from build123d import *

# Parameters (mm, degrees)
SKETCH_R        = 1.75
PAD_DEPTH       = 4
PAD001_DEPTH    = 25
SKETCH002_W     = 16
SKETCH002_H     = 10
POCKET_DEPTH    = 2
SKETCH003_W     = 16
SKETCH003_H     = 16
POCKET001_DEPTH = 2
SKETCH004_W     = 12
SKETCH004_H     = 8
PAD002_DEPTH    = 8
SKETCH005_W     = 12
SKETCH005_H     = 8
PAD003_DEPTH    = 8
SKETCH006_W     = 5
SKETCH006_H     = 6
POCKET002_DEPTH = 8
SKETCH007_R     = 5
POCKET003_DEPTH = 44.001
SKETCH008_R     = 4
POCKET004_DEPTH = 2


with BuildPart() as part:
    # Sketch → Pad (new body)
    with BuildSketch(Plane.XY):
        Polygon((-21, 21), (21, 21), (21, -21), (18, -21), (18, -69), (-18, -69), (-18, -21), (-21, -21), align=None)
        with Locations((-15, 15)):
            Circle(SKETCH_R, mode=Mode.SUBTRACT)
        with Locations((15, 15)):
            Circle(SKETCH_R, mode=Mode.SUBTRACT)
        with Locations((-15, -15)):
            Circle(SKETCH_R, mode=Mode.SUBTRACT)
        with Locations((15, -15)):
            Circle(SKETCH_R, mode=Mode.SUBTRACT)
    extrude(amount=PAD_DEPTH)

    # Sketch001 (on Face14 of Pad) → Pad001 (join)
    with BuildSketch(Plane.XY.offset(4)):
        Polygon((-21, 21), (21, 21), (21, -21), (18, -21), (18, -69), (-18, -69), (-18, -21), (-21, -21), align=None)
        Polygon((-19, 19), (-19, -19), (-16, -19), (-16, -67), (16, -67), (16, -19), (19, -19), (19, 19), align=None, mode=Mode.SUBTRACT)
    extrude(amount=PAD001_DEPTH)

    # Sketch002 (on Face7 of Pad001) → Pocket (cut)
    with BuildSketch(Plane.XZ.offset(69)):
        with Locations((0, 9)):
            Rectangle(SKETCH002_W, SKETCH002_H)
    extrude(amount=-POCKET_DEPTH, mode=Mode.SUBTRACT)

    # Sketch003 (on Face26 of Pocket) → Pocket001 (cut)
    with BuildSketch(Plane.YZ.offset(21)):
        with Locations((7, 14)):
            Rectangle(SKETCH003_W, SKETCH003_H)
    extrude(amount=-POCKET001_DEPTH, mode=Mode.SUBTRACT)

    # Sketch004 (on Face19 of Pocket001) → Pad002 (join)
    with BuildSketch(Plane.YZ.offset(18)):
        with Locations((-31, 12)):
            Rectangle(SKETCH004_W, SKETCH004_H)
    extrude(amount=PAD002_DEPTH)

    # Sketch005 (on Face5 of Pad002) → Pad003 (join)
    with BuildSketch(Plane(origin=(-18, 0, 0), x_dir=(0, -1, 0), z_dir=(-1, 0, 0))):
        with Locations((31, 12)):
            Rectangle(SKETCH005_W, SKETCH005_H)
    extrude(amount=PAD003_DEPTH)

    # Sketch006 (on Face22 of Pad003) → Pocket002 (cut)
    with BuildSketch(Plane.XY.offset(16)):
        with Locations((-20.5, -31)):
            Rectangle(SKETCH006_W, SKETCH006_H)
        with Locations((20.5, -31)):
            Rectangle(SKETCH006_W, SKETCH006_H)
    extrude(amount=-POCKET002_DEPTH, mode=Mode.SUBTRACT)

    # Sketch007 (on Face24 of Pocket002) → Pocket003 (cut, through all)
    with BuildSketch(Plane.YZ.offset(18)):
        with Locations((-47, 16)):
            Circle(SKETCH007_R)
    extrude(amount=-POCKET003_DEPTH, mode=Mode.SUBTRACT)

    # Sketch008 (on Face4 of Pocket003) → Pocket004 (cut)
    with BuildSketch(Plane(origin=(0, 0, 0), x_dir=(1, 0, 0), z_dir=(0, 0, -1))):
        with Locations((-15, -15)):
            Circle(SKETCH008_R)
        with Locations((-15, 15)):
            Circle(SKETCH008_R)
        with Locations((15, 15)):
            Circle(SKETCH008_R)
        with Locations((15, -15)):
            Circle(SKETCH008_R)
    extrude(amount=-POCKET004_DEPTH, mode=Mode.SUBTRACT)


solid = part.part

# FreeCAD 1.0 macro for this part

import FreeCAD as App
import Part
import Sketcher

V = App.Vector
Q = App.Units.Quantity

doc = App.newDocument("Part")
body = doc.addObject("PartDesign::Body", "Body")

sketch1 = body.newObject("Sketcher::SketchObject", "Sketch")
sketch1.AttachmentSupport = (doc.getObject("XY_Plane"), [""])
sketch1.MapMode = "FlatFace"
sketch1.addGeometry([
    Part.LineSegment(V(21, 21, 0), V(-21, 21, 0)),
    Part.LineSegment(V(-21, 21, 0), V(-21, -21, 0)),
    Part.LineSegment(V(-21, -21, 0), V(-18, -21, 0)),
    Part.LineSegment(V(-18, -21, 0), V(-18, -69, 0)),
    Part.LineSegment(V(-18, -69, 0), V(18, -69, 0)),
    Part.LineSegment(V(18, -69, 0), V(18, -21, 0)),
    Part.LineSegment(V(18, -21, 0), V(21, -21, 0)),
    Part.LineSegment(V(21, -21, 0), V(21, 21, 0)),
    Part.Circle(V(15, -15, 0), V(0, 0, 1), 1.8),
    Part.Circle(V(-15, -15, 0), V(0, 0, 1), 1.8),
    Part.Circle(V(15, 15, 0), V(0, 0, 1), 1.8),
    Part.Circle(V(-15, 15, 0), V(0, 0, 1), 1.8),
], False)
sketch1.addConstraint([
    Sketcher.Constraint("Coincident", 0, 2, 1, 1),
    Sketcher.Constraint("Coincident", 1, 2, 2, 1),
    Sketcher.Constraint("Coincident", 2, 2, 3, 1),
    Sketcher.Constraint("Coincident", 3, 2, 4, 1),
    Sketcher.Constraint("Coincident", 4, 2, 5, 1),
    Sketcher.Constraint("Coincident", 5, 2, 6, 1),
    Sketcher.Constraint("Coincident", 6, 2, 7, 1),
    Sketcher.Constraint("Coincident", 7, 2, 0, 1),
    Sketcher.Constraint("Horizontal", 0),
    Sketcher.Constraint("Vertical", 1),
    Sketcher.Constraint("Horizontal", 2),
    Sketcher.Constraint("Vertical", 3),
    Sketcher.Constraint("Horizontal", 4),
    Sketcher.Constraint("Vertical", 5),
    Sketcher.Constraint("Horizontal", 6),
    Sketcher.Constraint("Vertical", 7),
    Sketcher.Constraint("Equal", 8, 9),
    Sketcher.Constraint("Equal", 9, 10),
    Sketcher.Constraint("Equal", 10, 11),
    Sketcher.Constraint("Symmetric", 9, 3, 10, 3, -1, 1),
    Sketcher.Constraint("Symmetric", 8, 3, 11, 3, -1, 1),
    Sketcher.Constraint("Symmetric", 0, 2, 6, 2, -1, 1),
    Sketcher.Constraint("Symmetric", 8, 3, 9, 3, -2),
    Sketcher.Constraint("Symmetric", 2, 2, 5, 2, -2),
    Sketcher.Constraint("Equal", 0, 1),
    Sketcher.Constraint("Diameter", 8, Q("3.5 mm")),
    Sketcher.Constraint("DistanceX", 0, 2, 0, 1, Q("42 mm")),
    Sketcher.Constraint("DistanceX", 2, 1, 2, 2, Q("3 mm")),
    Sketcher.Constraint("DistanceY", 3, 2, 3, 1, Q("48 mm")),
    Sketcher.Constraint("DistanceX", -1, 1, 8, 3, Q("15 mm")),
    Sketcher.Constraint("DistanceY", 8, 3, -1, 1, Q("15 mm")),
])
pad1 = body.newObject("PartDesign::Pad", "Pad")
pad1.Profile = sketch1
pad1.Length = 4

sketch2 = body.newObject("Sketcher::SketchObject", "Sketch001")
sketch2.AttachmentSupport = (doc.getObject("XY_Plane"), [""])
sketch2.MapMode = "FlatFace"
sketch2.AttachmentOffset = App.Placement(V(0, 0, 4), App.Rotation())
sketch2.addGeometry([
    Part.LineSegment(V(21, 21, 0), V(-21, 21, 0)),
    Part.LineSegment(V(-21, 21, 0), V(-21, -21, 0)),
    Part.LineSegment(V(-21, -21, 0), V(-18, -21, 0)),
    Part.LineSegment(V(-18, -21, 0), V(-18, -69, 0)),
    Part.LineSegment(V(-18, -69, 0), V(18, -69, 0)),
    Part.LineSegment(V(18, -69, 0), V(18, -21, 0)),
    Part.LineSegment(V(18, -21, 0), V(21, -21, 0)),
    Part.LineSegment(V(21, -21, 0), V(21, 21, 0)),
    Part.LineSegment(V(-19, 19, 0), V(19, 19, 0)),
    Part.LineSegment(V(19, 19, 0), V(19, -19, 0)),
    Part.LineSegment(V(19, -19, 0), V(16, -19, 0)),
    Part.LineSegment(V(16, -19, 0), V(16, -67, 0)),
    Part.LineSegment(V(16, -67, 0), V(-16, -67, 0)),
    Part.LineSegment(V(-16, -67, 0), V(-16, -19, 0)),
    Part.LineSegment(V(-16, -19, 0), V(-19, -19, 0)),
    Part.LineSegment(V(-19, -19, 0), V(-19, 19, 0)),
], False)
sketch2.addConstraint([
    Sketcher.Constraint("Coincident", 0, 2, 1, 1),
    Sketcher.Constraint("Coincident", 1, 2, 2, 1),
    Sketcher.Constraint("Coincident", 2, 2, 3, 1),
    Sketcher.Constraint("Coincident", 3, 2, 4, 1),
    Sketcher.Constraint("Coincident", 4, 2, 5, 1),
    Sketcher.Constraint("Coincident", 5, 2, 6, 1),
    Sketcher.Constraint("Coincident", 6, 2, 7, 1),
    Sketcher.Constraint("Coincident", 7, 2, 0, 1),
    Sketcher.Constraint("Coincident", 8, 2, 9, 1),
    Sketcher.Constraint("Coincident", 9, 2, 10, 1),
    Sketcher.Constraint("Coincident", 10, 2, 11, 1),
    Sketcher.Constraint("Coincident", 11, 2, 12, 1),
    Sketcher.Constraint("Coincident", 12, 2, 13, 1),
    Sketcher.Constraint("Coincident", 13, 2, 14, 1),
    Sketcher.Constraint("Coincident", 14, 2, 15, 1),
    Sketcher.Constraint("Coincident", 15, 2, 8, 1),
    Sketcher.Constraint("Horizontal", 0),
    Sketcher.Constraint("Vertical", 1),
    Sketcher.Constraint("Horizontal", 2),
    Sketcher.Constraint("Vertical", 3),
    Sketcher.Constraint("Horizontal", 4),
    Sketcher.Constraint("Vertical", 5),
    Sketcher.Constraint("Horizontal", 6),
    Sketcher.Constraint("Vertical", 7),
    Sketcher.Constraint("Horizontal", 8),
    Sketcher.Constraint("Vertical", 9),
    Sketcher.Constraint("Horizontal", 10),
    Sketcher.Constraint("Vertical", 11),
    Sketcher.Constraint("Horizontal", 12),
    Sketcher.Constraint("Vertical", 13),
    Sketcher.Constraint("Horizontal", 14),
    Sketcher.Constraint("Vertical", 15),
    Sketcher.Constraint("Symmetric", 0, 2, 6, 2, -1, 1),
    Sketcher.Constraint("Symmetric", 8, 2, 14, 2, -1, 1),
    Sketcher.Constraint("Symmetric", 2, 2, 5, 2, -2),
    Sketcher.Constraint("Symmetric", 10, 2, 13, 2, -2),
    Sketcher.Constraint("Equal", 6, 10),
    Sketcher.Constraint("Equal", 0, 1),
    Sketcher.Constraint("Equal", 8, 9),
    Sketcher.Constraint("Equal", 5, 11),
    Sketcher.Constraint("DistanceX", 0, 2, 0, 1, Q("42 mm")),
    Sketcher.Constraint("DistanceX", 2, 1, 2, 2, Q("3 mm")),
    Sketcher.Constraint("DistanceX", 8, 1, 8, 2, Q("38 mm")),
    Sketcher.Constraint("DistanceY", 3, 2, 3, 1, Q("48 mm")),
])
pad2 = body.newObject("PartDesign::Pad", "Pad001")
pad2.Profile = sketch2
pad2.Length = 25

sketch3 = body.newObject("Sketcher::SketchObject", "Sketch002")
sketch3.AttachmentSupport = (doc.getObject("XZ_Plane"), [""])
sketch3.MapMode = "FlatFace"
sketch3.AttachmentOffset = App.Placement(V(0, 0, 69), App.Rotation())
sketch3.addGeometry([
    Part.LineSegment(V(-8, 14, 0), V(-8, 4, 0)),
    Part.LineSegment(V(-8, 4, 0), V(8, 4, 0)),
    Part.LineSegment(V(8, 4, 0), V(8, 14, 0)),
    Part.LineSegment(V(8, 14, 0), V(-8, 14, 0)),
], False)
sketch3.addConstraint([
    Sketcher.Constraint("Coincident", 0, 2, 1, 1),
    Sketcher.Constraint("Coincident", 1, 2, 2, 1),
    Sketcher.Constraint("Coincident", 2, 2, 3, 1),
    Sketcher.Constraint("Coincident", 3, 2, 0, 1),
    Sketcher.Constraint("Vertical", 0),
    Sketcher.Constraint("Horizontal", 1),
    Sketcher.Constraint("Vertical", 2),
    Sketcher.Constraint("Horizontal", 3),
    Sketcher.Constraint("DistanceX", 1, 1, 1, 2, Q("16 mm")),
    Sketcher.Constraint("DistanceY", 0, 2, 0, 1, Q("10 mm")),
    Sketcher.Constraint("DistanceX", 0, 2, -1, 1, Q("8 mm")),
    Sketcher.Constraint("DistanceY", -1, 1, 0, 2, Q("4 mm")),
])
pocket1 = body.newObject("PartDesign::Pocket", "Pocket")
pocket1.Profile = sketch3
pocket1.Length = 2

sketch4 = body.newObject("Sketcher::SketchObject", "Sketch003")
sketch4.AttachmentSupport = (doc.getObject("YZ_Plane"), [""])
sketch4.MapMode = "FlatFace"
sketch4.AttachmentOffset = App.Placement(V(0, 0, 21), App.Rotation())
sketch4.addGeometry([
    Part.LineSegment(V(-1, 22, 0), V(-1, 6, 0)),
    Part.LineSegment(V(-1, 6, 0), V(15, 6, 0)),
    Part.LineSegment(V(15, 6, 0), V(15, 22, 0)),
    Part.LineSegment(V(15, 22, 0), V(-1, 22, 0)),
], False)
sketch4.addConstraint([
    Sketcher.Constraint("Coincident", 0, 2, 1, 1),
    Sketcher.Constraint("Coincident", 1, 2, 2, 1),
    Sketcher.Constraint("Coincident", 2, 2, 3, 1),
    Sketcher.Constraint("Coincident", 3, 2, 0, 1),
    Sketcher.Constraint("Vertical", 0),
    Sketcher.Constraint("Horizontal", 1),
    Sketcher.Constraint("Vertical", 2),
    Sketcher.Constraint("Horizontal", 3),
    Sketcher.Constraint("Equal", 3, 0),
    Sketcher.Constraint("DistanceX", 1, 1, 1, 2, Q("16 mm")),
    Sketcher.Constraint("DistanceX", 0, 2, -1, 1, Q("1 mm")),
    Sketcher.Constraint("DistanceY", -1, 1, 0, 2, Q("6 mm")),
])
pocket2 = body.newObject("PartDesign::Pocket", "Pocket001")
pocket2.Profile = sketch4
pocket2.Length = 2

sketch5 = body.newObject("Sketcher::SketchObject", "Sketch004")
sketch5.AttachmentSupport = (doc.getObject("YZ_Plane"), [""])
sketch5.MapMode = "FlatFace"
sketch5.AttachmentOffset = App.Placement(V(0, 0, 18), App.Rotation())
sketch5.addGeometry([
    Part.LineSegment(V(-37, 16, 0), V(-37, 8, 0)),
    Part.LineSegment(V(-37, 8, 0), V(-25, 8, 0)),
    Part.LineSegment(V(-25, 8, 0), V(-25, 16, 0)),
    Part.LineSegment(V(-25, 16, 0), V(-37, 16, 0)),
], False)
sketch5.addConstraint([
    Sketcher.Constraint("Coincident", 0, 2, 1, 1),
    Sketcher.Constraint("Coincident", 1, 2, 2, 1),
    Sketcher.Constraint("Coincident", 2, 2, 3, 1),
    Sketcher.Constraint("Coincident", 3, 2, 0, 1),
    Sketcher.Constraint("Vertical", 0),
    Sketcher.Constraint("Horizontal", 1),
    Sketcher.Constraint("Vertical", 2),
    Sketcher.Constraint("Horizontal", 3),
    Sketcher.Constraint("DistanceX", 1, 1, 1, 2, Q("12 mm")),
    Sketcher.Constraint("DistanceY", 0, 2, 0, 1, Q("8 mm")),
    Sketcher.Constraint("DistanceX", 0, 2, -1, 1, Q("37 mm")),
    Sketcher.Constraint("DistanceY", -1, 1, 0, 2, Q("8 mm")),
])
pad3 = body.newObject("PartDesign::Pad", "Pad002")
pad3.Profile = sketch5
pad3.Length = 8

sketch6 = body.newObject("Sketcher::SketchObject", "Sketch005")
sketch6.AttachmentSupport = (doc.getObject("YZ_Plane"), [""])
sketch6.MapMode = "FlatFace"
sketch6.AttachmentOffset = App.Placement(V(0, 0, -18), App.Rotation())
sketch6.addGeometry([
    Part.LineSegment(V(-25, 16, 0), V(-25, 8, 0)),
    Part.LineSegment(V(-25, 8, 0), V(-37, 8, 0)),
    Part.LineSegment(V(-37, 8, 0), V(-37, 16, 0)),
    Part.LineSegment(V(-37, 16, 0), V(-25, 16, 0)),
], False)
sketch6.addConstraint([
    Sketcher.Constraint("Coincident", 0, 2, 1, 1),
    Sketcher.Constraint("Coincident", 1, 2, 2, 1),
    Sketcher.Constraint("Coincident", 2, 2, 3, 1),
    Sketcher.Constraint("Coincident", 3, 2, 0, 1),
    Sketcher.Constraint("Vertical", 0),
    Sketcher.Constraint("Horizontal", 1),
    Sketcher.Constraint("Vertical", 2),
    Sketcher.Constraint("Horizontal", 3),
    Sketcher.Constraint("DistanceX", 1, 2, 1, 1, Q("12 mm")),
    Sketcher.Constraint("DistanceY", 0, 2, 0, 1, Q("8 mm")),
    Sketcher.Constraint("DistanceX", 0, 2, -1, 1, Q("25 mm")),
    Sketcher.Constraint("DistanceY", -1, 1, 0, 2, Q("8 mm")),
])
pad4 = body.newObject("PartDesign::Pad", "Pad003")
pad4.Profile = sketch6
pad4.Length = 8
pad4.Reversed = True

sketch7 = body.newObject("Sketcher::SketchObject", "Sketch006")
sketch7.AttachmentSupport = (doc.getObject("XY_Plane"), [""])
sketch7.MapMode = "FlatFace"
sketch7.AttachmentOffset = App.Placement(V(0, 0, 16), App.Rotation())
sketch7.addGeometry([
    Part.LineSegment(V(-23, -28, 0), V(-23, -34, 0)),
    Part.LineSegment(V(-23, -34, 0), V(-18, -34, 0)),
    Part.LineSegment(V(-18, -34, 0), V(-18, -28, 0)),
    Part.LineSegment(V(-18, -28, 0), V(-23, -28, 0)),
    Part.LineSegment(V(18, -28, 0), V(18, -34, 0)),
    Part.LineSegment(V(18, -34, 0), V(23, -34, 0)),
    Part.LineSegment(V(23, -34, 0), V(23, -28, 0)),
    Part.LineSegment(V(23, -28, 0), V(18, -28, 0)),
], False)
sketch7.addConstraint([
    Sketcher.Constraint("Coincident", 0, 2, 1, 1),
    Sketcher.Constraint("Coincident", 1, 2, 2, 1),
    Sketcher.Constraint("Coincident", 2, 2, 3, 1),
    Sketcher.Constraint("Coincident", 3, 2, 0, 1),
    Sketcher.Constraint("Coincident", 4, 2, 5, 1),
    Sketcher.Constraint("Coincident", 5, 2, 6, 1),
    Sketcher.Constraint("Coincident", 6, 2, 7, 1),
    Sketcher.Constraint("Coincident", 7, 2, 4, 1),
    Sketcher.Constraint("Vertical", 0),
    Sketcher.Constraint("Horizontal", 1),
    Sketcher.Constraint("Vertical", 2),
    Sketcher.Constraint("Horizontal", 3),
    Sketcher.Constraint("Vertical", 4),
    Sketcher.Constraint("Horizontal", 5),
    Sketcher.Constraint("Vertical", 6),
    Sketcher.Constraint("Horizontal", 7),
    Sketcher.Constraint("Symmetric", 1, 2, 4, 2, -2),
    Sketcher.Constraint("Symmetric", 3, 2, 6, 2, -2),
    Sketcher.Constraint("DistanceX", 1, 1, 1, 2, Q("5 mm")),
    Sketcher.Constraint("DistanceY", 0, 2, 0, 1, Q("6 mm")),
    Sketcher.Constraint("DistanceX", 0, 2, -1, 1, Q("23 mm")),
    Sketcher.Constraint("DistanceY", 0, 2, -1, 1, Q("34 mm")),
])
pocket3 = body.newObject("PartDesign::Pocket", "Pocket002")
pocket3.Profile = sketch7
pocket3.Length = 8

sketch8 = body.newObject("Sketcher::SketchObject", "Sketch007")
sketch8.AttachmentSupport = (doc.getObject("YZ_Plane"), [""])
sketch8.MapMode = "FlatFace"
sketch8.AttachmentOffset = App.Placement(V(0, 0, 18), App.Rotation())
sketch8.addGeometry(Part.Circle(V(-47, 16, 0), V(0, 0, 1), 5), False)
sketch8.addConstraint([
    Sketcher.Constraint("Diameter", 0, Q("10 mm")),
    Sketcher.Constraint("DistanceX", 0, 3, -1, 1, Q("47 mm")),
    Sketcher.Constraint("DistanceY", -1, 1, 0, 3, Q("16 mm")),
])
pocket4 = body.newObject("PartDesign::Pocket", "Pocket003")
pocket4.Profile = sketch8
pocket4.Type = "ThroughAll"

sketch9 = body.newObject("Sketcher::SketchObject", "Sketch008")
sketch9.AttachmentSupport = (doc.getObject("XY_Plane"), [""])
sketch9.MapMode = "FlatFace"
sketch9.addGeometry([
    Part.Circle(V(-15, 15, 0), V(0, 0, 1), 4),
    Part.Circle(V(-15, -15, 0), V(0, 0, 1), 4),
    Part.Circle(V(15, -15, 0), V(0, 0, 1), 4),
    Part.Circle(V(15, 15, 0), V(0, 0, 1), 4),
], False)
sketch9.addConstraint([
    Sketcher.Constraint("Equal", 0, 1),
    Sketcher.Constraint("Equal", 1, 2),
    Sketcher.Constraint("Equal", 2, 3),
    Sketcher.Constraint("Symmetric", 0, 3, 2, 3, -1, 1),
    Sketcher.Constraint("Symmetric", 1, 3, 3, 3, -1, 1),
    Sketcher.Constraint("Symmetric", 1, 3, 2, 3, -2),
    Sketcher.Constraint("Diameter", 0, Q("8 mm")),
    Sketcher.Constraint("DistanceX", 0, 3, -1, 1, Q("15 mm")),
    Sketcher.Constraint("DistanceY", -1, 1, 0, 3, Q("15 mm")),
])
pocket5 = body.newObject("PartDesign::Pocket", "Pocket004")
pocket5.Profile = sketch9
pocket5.Length = 2
pocket5.Reversed = True

doc.recompute()
